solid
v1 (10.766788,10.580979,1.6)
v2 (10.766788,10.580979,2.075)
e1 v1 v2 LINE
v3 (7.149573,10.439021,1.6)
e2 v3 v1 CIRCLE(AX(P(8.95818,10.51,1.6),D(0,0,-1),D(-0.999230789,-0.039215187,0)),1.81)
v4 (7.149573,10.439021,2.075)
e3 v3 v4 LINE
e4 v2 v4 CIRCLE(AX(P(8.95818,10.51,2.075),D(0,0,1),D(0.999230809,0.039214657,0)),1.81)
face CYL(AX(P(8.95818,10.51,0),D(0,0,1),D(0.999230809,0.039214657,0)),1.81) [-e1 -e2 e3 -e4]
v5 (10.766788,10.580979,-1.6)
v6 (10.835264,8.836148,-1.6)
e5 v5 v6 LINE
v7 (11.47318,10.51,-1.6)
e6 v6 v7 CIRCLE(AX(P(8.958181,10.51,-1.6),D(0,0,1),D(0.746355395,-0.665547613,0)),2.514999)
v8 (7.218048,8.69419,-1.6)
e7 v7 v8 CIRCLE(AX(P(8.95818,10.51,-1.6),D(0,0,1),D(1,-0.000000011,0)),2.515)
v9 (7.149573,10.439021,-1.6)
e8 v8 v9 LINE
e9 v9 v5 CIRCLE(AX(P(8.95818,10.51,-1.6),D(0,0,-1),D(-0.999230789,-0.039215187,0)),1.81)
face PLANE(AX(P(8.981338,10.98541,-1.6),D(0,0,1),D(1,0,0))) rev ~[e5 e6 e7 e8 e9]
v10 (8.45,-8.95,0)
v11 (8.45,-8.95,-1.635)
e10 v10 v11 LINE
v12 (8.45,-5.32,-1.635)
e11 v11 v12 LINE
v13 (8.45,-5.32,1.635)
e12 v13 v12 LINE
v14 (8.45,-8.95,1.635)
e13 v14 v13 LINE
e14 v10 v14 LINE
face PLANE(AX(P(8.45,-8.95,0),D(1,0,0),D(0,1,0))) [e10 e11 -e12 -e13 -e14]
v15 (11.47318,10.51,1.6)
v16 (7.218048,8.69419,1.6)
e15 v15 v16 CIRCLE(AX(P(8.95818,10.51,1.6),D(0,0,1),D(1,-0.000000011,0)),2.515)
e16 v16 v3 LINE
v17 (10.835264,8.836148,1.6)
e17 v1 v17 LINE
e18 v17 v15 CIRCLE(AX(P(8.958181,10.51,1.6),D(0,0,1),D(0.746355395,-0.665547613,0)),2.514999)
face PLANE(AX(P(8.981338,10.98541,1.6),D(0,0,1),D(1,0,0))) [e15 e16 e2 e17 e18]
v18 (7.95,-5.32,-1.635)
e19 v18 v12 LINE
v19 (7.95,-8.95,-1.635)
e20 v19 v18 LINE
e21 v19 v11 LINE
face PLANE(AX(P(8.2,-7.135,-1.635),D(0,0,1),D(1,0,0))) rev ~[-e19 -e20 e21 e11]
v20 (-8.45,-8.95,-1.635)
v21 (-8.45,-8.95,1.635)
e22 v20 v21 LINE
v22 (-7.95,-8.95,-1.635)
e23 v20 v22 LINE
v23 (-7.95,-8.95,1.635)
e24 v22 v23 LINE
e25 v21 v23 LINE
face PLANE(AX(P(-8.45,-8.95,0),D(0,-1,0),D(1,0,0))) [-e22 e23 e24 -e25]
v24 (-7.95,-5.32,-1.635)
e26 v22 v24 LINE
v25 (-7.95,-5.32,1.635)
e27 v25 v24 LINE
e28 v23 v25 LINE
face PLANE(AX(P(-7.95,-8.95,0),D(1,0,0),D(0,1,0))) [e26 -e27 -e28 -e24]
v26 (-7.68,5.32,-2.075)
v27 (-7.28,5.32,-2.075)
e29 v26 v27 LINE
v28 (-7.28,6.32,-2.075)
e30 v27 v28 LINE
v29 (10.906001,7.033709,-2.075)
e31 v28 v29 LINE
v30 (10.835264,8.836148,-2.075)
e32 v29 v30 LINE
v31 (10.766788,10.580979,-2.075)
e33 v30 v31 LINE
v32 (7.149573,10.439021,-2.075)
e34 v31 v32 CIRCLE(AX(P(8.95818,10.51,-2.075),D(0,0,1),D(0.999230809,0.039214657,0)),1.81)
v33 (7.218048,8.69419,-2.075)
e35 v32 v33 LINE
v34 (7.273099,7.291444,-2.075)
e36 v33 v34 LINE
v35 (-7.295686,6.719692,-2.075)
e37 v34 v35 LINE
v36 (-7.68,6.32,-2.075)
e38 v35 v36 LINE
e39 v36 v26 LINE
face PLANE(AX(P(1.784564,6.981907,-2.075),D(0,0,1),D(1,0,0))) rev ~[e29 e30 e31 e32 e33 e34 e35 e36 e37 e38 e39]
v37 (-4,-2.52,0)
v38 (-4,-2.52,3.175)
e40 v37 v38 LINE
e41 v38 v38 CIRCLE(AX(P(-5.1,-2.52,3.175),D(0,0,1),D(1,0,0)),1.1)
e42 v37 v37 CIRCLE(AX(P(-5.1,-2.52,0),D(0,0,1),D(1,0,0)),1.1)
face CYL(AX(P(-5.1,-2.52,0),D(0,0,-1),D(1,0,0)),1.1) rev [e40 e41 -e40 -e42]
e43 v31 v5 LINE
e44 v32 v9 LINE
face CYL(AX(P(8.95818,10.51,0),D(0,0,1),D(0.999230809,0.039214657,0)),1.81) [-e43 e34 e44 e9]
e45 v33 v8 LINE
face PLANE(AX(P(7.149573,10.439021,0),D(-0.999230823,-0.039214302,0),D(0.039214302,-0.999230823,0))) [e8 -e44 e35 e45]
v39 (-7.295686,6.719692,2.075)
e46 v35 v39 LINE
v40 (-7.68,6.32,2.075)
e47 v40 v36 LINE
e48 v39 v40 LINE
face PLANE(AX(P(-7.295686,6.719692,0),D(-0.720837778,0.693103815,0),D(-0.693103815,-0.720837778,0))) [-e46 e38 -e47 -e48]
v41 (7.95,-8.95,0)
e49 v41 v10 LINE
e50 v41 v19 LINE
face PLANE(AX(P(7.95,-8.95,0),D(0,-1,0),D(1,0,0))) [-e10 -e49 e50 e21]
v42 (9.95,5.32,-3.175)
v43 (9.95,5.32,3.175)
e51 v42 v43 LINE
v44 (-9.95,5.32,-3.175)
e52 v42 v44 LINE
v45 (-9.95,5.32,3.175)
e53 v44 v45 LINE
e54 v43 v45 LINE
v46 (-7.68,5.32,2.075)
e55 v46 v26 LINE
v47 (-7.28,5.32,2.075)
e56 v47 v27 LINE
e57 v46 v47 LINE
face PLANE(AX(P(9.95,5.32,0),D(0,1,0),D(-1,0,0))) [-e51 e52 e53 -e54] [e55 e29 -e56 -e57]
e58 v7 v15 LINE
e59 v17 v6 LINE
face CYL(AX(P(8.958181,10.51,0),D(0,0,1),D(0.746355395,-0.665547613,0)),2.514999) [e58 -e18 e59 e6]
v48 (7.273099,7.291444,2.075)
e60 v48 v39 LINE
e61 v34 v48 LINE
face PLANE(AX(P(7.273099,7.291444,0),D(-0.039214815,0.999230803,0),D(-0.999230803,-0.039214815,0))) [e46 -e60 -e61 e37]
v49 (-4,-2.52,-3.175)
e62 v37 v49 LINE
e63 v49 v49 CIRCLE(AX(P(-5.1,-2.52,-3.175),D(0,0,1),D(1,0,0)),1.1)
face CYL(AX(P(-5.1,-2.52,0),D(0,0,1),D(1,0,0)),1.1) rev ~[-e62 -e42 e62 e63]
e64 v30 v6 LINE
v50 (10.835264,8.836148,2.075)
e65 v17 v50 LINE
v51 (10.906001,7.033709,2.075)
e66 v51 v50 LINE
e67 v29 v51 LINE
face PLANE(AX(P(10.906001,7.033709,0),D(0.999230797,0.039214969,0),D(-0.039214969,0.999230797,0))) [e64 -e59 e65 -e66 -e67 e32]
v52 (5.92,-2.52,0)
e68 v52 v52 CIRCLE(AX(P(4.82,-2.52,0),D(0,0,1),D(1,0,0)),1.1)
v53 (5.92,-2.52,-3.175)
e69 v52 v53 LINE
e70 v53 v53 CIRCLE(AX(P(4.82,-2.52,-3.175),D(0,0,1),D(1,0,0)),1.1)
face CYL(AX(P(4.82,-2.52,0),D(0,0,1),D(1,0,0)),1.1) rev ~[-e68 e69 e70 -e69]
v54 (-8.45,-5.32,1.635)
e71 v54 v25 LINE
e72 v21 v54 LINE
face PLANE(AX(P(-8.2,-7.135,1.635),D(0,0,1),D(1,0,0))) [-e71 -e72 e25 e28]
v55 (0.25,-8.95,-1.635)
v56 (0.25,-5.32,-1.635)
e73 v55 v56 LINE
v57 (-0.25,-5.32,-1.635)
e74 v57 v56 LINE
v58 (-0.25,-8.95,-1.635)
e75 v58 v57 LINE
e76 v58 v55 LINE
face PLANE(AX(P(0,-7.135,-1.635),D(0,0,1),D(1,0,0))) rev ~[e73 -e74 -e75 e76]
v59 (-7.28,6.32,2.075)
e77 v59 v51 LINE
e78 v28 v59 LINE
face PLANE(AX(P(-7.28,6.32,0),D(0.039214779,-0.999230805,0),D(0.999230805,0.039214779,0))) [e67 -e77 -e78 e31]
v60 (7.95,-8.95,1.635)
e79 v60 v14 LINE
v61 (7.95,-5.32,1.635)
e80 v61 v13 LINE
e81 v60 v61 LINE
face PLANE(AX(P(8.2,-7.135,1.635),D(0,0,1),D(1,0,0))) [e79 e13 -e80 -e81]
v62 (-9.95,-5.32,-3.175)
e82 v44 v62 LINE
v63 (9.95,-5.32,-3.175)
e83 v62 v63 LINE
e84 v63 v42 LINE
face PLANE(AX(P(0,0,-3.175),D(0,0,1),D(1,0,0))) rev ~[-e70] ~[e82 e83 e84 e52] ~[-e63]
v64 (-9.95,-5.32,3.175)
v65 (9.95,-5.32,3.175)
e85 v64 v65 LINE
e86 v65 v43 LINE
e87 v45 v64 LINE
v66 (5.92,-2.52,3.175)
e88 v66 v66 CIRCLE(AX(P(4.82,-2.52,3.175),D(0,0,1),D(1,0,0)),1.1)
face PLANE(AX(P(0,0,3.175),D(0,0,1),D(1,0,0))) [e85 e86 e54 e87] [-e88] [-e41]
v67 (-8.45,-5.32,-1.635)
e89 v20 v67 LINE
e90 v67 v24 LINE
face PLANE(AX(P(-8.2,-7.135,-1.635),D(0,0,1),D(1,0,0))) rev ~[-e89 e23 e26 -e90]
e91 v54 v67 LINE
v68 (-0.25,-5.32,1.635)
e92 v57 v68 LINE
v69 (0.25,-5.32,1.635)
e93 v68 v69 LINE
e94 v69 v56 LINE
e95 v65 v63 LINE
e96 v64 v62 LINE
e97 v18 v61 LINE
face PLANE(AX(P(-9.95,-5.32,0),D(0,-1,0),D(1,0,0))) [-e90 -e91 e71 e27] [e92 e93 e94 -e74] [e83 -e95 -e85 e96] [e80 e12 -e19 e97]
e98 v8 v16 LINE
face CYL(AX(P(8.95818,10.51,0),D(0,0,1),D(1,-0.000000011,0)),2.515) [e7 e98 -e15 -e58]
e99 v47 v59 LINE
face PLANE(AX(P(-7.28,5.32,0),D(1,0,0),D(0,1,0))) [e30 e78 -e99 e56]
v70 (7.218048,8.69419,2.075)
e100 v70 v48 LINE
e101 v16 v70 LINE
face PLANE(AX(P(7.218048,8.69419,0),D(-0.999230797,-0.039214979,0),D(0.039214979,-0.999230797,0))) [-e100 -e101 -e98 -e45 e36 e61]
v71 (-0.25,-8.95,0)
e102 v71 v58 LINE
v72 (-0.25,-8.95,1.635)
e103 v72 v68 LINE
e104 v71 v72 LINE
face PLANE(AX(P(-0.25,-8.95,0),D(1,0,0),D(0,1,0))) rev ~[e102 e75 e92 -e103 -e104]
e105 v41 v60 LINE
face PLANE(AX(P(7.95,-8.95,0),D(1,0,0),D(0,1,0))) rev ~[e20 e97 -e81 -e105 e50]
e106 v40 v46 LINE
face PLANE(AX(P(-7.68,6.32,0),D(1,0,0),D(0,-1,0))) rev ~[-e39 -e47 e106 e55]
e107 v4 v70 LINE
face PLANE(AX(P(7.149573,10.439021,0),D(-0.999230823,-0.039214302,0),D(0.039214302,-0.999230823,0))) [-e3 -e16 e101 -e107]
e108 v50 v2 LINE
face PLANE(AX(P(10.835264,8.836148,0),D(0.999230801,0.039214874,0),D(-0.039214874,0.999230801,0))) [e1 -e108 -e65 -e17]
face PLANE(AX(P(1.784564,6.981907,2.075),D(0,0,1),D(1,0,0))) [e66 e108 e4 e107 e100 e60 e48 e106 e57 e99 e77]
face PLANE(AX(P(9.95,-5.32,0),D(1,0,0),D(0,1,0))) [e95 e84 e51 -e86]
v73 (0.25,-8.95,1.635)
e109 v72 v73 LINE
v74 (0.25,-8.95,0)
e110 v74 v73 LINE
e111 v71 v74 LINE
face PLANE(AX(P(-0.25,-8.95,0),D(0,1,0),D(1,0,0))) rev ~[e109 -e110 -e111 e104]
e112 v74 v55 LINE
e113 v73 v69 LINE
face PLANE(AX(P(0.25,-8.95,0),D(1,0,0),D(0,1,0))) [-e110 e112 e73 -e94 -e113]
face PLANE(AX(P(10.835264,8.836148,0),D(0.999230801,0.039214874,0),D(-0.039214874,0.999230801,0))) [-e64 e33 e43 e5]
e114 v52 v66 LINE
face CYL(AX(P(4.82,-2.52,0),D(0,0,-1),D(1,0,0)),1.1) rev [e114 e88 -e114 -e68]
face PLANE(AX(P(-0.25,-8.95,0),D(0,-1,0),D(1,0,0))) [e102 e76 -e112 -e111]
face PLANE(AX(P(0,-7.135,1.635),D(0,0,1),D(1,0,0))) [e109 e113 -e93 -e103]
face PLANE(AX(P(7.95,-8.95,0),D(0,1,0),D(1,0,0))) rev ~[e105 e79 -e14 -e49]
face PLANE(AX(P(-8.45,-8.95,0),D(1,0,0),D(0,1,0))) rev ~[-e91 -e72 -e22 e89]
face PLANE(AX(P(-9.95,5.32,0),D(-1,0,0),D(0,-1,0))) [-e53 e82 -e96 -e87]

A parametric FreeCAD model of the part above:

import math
import FreeCAD as App
import Part
import Sketcher

doc = App.newDocument("Part")
body = doc.addObject("PartDesign::Body", "Body")

# Sketch on XY plane
sketch1 = body.newObject("Sketcher::SketchObject", "Sketch")
sketch1.AttachmentSupport = (doc.getObject("XY_Plane"), [""])
sketch1.MapMode = "FlatFace"
sketch1.addGeometry([
    Part.LineSegment(App.Vector(9.9, -5.3, 0), App.Vector(9.9, 5.3, 0)),  # 0
    Part.LineSegment(App.Vector(9.9, 5.3, 0), App.Vector(-9.9, 5.3, 0)),  # 1
    Part.LineSegment(App.Vector(-9.9, 5.3, 0), App.Vector(-9.9, -5.3, 0)),  # 2
    Part.LineSegment(App.Vector(-9.9, -5.3, 0), App.Vector(9.9, -5.3, 0)),  # 3
    Part.Circle(App.Vector(-5.1, -2.5, 0), App.Vector(0, 0, 1), 1.1),  # 4
    Part.Circle(App.Vector(4.8, -2.5, 0), App.Vector(0, 0, 1), 1.1),  # 5
], False)
sketch1.addConstraint([
    Sketcher.Constraint("Coincident", 0, 2, 1, 1),
    Sketcher.Constraint("Coincident", 1, 2, 2, 1),
    Sketcher.Constraint("Coincident", 2, 2, 3, 1),
    Sketcher.Constraint("Coincident", 3, 2, 0, 1),
    Sketcher.Constraint("Vertical", 0),
    Sketcher.Constraint("Horizontal", 1),
    Sketcher.Constraint("Vertical", 2),
    Sketcher.Constraint("Horizontal", 3),
    Sketcher.Constraint("Equal", 4, 5),
    Sketcher.Constraint("Symmetric", 0, 2, 2, 2, -1, 1),
    Sketcher.Constraint("Horizontal", 4, 3, 5, 3),
    Sketcher.Constraint("Diameter", 4, 2.2),
    Sketcher.Constraint("DistanceX", 1, 2, 1, 1, 19.9),
    Sketcher.Constraint("DistanceY", 0, 1, 0, 2, 10.64),
    Sketcher.Constraint("DistanceX", 4, 3, -1, 1, 5.1),
    Sketcher.Constraint("DistanceY", 2, 2, 4, 3, 2.8),
    Sketcher.Constraint("DistanceX", -1, 1, 5, 3, 4.82),
])
pad1 = body.newObject("PartDesign::Pad", "Pad")
pad1.Profile = sketch1
pad1.Type = "TwoLengths"
pad1.Length = 3.175
pad1.Length2 = 3.175

# Sketch on XY plane
sketch2 = body.newObject("Sketcher::SketchObject", "Sketch001")
sketch2.AttachmentSupport = (doc.getObject("XY_Plane"), [""])
sketch2.MapMode = "FlatFace"
sketch2.addGeometry([
    Part.LineSegment(App.Vector(-7.68, 5.32, 0), App.Vector(-7.28, 5.32, 0)),  # 0
    Part.LineSegment(App.Vector(-7.28, 5.32, 0), App.Vector(-7.28, 6.32, 0)),  # 1
    Part.LineSegment(App.Vector(-7.28, 6.32, 0), App.Vector(10.91, 7.03, 0)),  # 2
    Part.LineSegment(App.Vector(10.91, 7.03, 0), App.Vector(10.84, 8.84, 0)),  # 3
    Part.LineSegment(App.Vector(10.84, 8.84, 0), App.Vector(10.77, 10.58, 0)),  # 4
    Part.ArcOfCircle(Part.Circle(App.Vector(8.96, 10.51, 0), App.Vector(0, 0, 1), 1.81), math.radians(2), math.radians(182)),  # 5
    Part.LineSegment(App.Vector(7.15, 10.44, 0), App.Vector(7.22, 8.69, 0)),  # 6
    Part.LineSegment(App.Vector(7.22, 8.69, 0), App.Vector(7.27, 7.29, 0)),  # 7
    Part.LineSegment(App.Vector(7.27, 7.29, 0), App.Vector(-7.3, 6.72, 0)),  # 8
    Part.LineSegment(App.Vector(-7.3, 6.72, 0), App.Vector(-7.68, 6.32, 0)),  # 9
    Part.LineSegment(App.Vector(-7.68, 6.32, 0), App.Vector(-7.68, 5.32, 0)),  # 10
], False)
sketch2.addConstraint([
    Sketcher.Constraint("Coincident", 0, 2, 1, 1),
    Sketcher.Constraint("Coincident", 1, 2, 2, 1),
    Sketcher.Constraint("Coincident", 2, 2, 3, 1),
    Sketcher.Constraint("Coincident", 3, 2, 4, 1),
    Sketcher.Constraint("Tangent", 4, 2, 5, 1),
    Sketcher.Constraint("Tangent", 5, 2, 6, 1),
    Sketcher.Constraint("Coincident", 6, 2, 7, 1),
    Sketcher.Constraint("Coincident", 7, 2, 8, 1),
    Sketcher.Constraint("Coincident", 8, 2, 9, 1),
    Sketcher.Constraint("Coincident", 9, 2, 10, 1),
    Sketcher.Constraint("Coincident", 10, 2, 0, 1),
    Sketcher.Constraint("Horizontal", 0),
    Sketcher.Constraint("Vertical", 1),
    Sketcher.Constraint("Vertical", 10),
    Sketcher.Constraint("Perpendicular", 2, 3),
    Sketcher.Constraint("Parallel", 3, 4),
    Sketcher.Constraint("Parallel", 4, 6),
    Sketcher.Constraint("Parallel", 6, 7),
    Sketcher.Constraint("Perpendicular", 7, 8),
    Sketcher.Constraint("Horizontal", 1, 2, 9, 2),
    Sketcher.Constraint("Equal", 4, 6),
    Sketcher.Constraint("DistanceY", 1, 1, 1, 2, 1.0),
    Sketcher.Constraint("Radius", 5, 1.81),
    Sketcher.Constraint("DistanceX", 0, 1, 0, 2, 0.4),
    Sketcher.Constraint("Distance", 2, 18.2),
    Sketcher.Constraint("Distance", 8, 14.58),
    Sketcher.Constraint("DistanceY", -1, 1, 5, 3, 10.51),
    Sketcher.Constraint("DistanceX", 0, 2, -1, 1, 7.28),
    Sketcher.Constraint("DistanceY", -1, 1, 0, 2, 5.32),
    Sketcher.Constraint("DistanceX", -1, 1, 2, 2, 10.906001),
    Sketcher.Constraint("DistanceX", -1, 1, 7, 2, 7.273099),
    Sketcher.Constraint("DistanceY", 8, 2, 6, 2, 1.974498),
])
pad2 = body.newObject("PartDesign::Pad", "Pad001")
pad2.Profile = sketch2
pad2.Type = "TwoLengths"
pad2.Length = 2.075
pad2.Length2 = 2.075

# Sketch on XY plane
sketch3 = body.newObject("Sketcher::SketchObject", "Sketch002")
sketch3.AttachmentSupport = (doc.getObject("XY_Plane"), [""])
sketch3.MapMode = "FlatFace"
sketch3.addGeometry([
    Part.LineSegment(App.Vector(-8.45, -5.32, 0), App.Vector(-8.45, -8.95, 0)),  # 0
    Part.LineSegment(App.Vector(-8.45, -8.95, 0), App.Vector(-7.95, -8.95, 0)),  # 1
    Part.LineSegment(App.Vector(-7.95, -8.95, 0), App.Vector(-7.95, -5.32, 0)),  # 2
    Part.LineSegment(App.Vector(-7.95, -5.32, 0), App.Vector(-8.45, -5.32, 0)),  # 3
    Part.LineSegment(App.Vector(7.95, -5.32, 0), App.Vector(7.95, -8.95, 0)),  # 4
    Part.LineSegment(App.Vector(7.95, -8.95, 0), App.Vector(8.45, -8.95, 0)),  # 5
    Part.LineSegment(App.Vector(8.45, -8.95, 0), App.Vector(8.45, -5.32, 0)),  # 6
    Part.LineSegment(App.Vector(8.45, -5.32, 0), App.Vector(7.95, -5.32, 0)),  # 7
    Part.LineSegment(App.Vector(-0.25, -5.32, 0), App.Vector(-0.25, -8.95, 0)),  # 8
    Part.LineSegment(App.Vector(-0.25, -8.95, 0), App.Vector(0.25, -8.95, 0)),  # 9
    Part.LineSegment(App.Vector(0.25, -8.95, 0), App.Vector(0.25, -5.32, 0)),  # 10
    Part.LineSegment(App.Vector(0.25, -5.32, 0), App.Vector(-0.25, -5.32, 0)),  # 11
], False)
sketch3.addConstraint([
    Sketcher.Constraint("Coincident", 0, 2, 1, 1),
    Sketcher.Constraint("Coincident", 1, 2, 2, 1),
    Sketcher.Constraint("Coincident", 2, 2, 3, 1),
    Sketcher.Constraint("Coincident", 3, 2, 0, 1),
    Sketcher.Constraint("Coincident", 4, 2, 5, 1),
    Sketcher.Constraint("Coincident", 5, 2, 6, 1),
    Sketcher.Constraint("Coincident", 6, 2, 7, 1),
    Sketcher.Constraint("Coincident", 7, 2, 4, 1),
    Sketcher.Constraint("Coincident", 8, 2, 9, 1),
    Sketcher.Constraint("Coincident", 9, 2, 10, 1),
    Sketcher.Constraint("Coincident", 10, 2, 11, 1),
    Sketcher.Constraint("Coincident", 11, 2, 8, 1),
    Sketcher.Constraint("Vertical", 0),
    Sketcher.Constraint("Horizontal", 1),
    Sketcher.Constraint("Vertical", 2),
    Sketcher.Constraint("Horizontal", 3),
    Sketcher.Constraint("Vertical", 4),
    Sketcher.Constraint("Horizontal", 5),
    Sketcher.Constraint("Vertical", 6),
    Sketcher.Constraint("Horizontal", 7),
    Sketcher.Constraint("Vertical", 8),
    Sketcher.Constraint("Horizontal", 9),
    Sketcher.Constraint("Vertical", 10),
    Sketcher.Constraint("Horizontal", 11),
    Sketcher.Constraint("Symmetric", 1, 2, 4, 2, -2),
    Sketcher.Constraint("Symmetric", 3, 2, 6, 2, -2),
    Sketcher.Constraint("Horizontal", 5, 2, 8, 2),
    Sketcher.Constraint("Horizontal", 7, 2, 10, 2),
    Sketcher.Constraint("Equal", 7, 9),
    Sketcher.Constraint("DistanceX", 1, 1, 1, 2, 0.5),
    Sketcher.Constraint("DistanceY", 0, 2, 0, 1, 3.63),
    Sketcher.Constraint("DistanceX", 1, 2, 4, 2, 15.9),
    Sketcher.Constraint("DistanceX", 1, 2, 8, 2, 7.7),
    Sketcher.Constraint("DistanceY", 0, 2, -1, 1, 8.95),
])
pad3 = body.newObject("PartDesign::Pad", "Pad002")
pad3.Profile = sketch3
pad3.Type = "TwoLengths"
pad3.Length = 1.635
pad3.Length2 = 1.635

# Sketch on XY plane
sketch4 = body.newObject("Sketcher::SketchObject", "Sketch003")
sketch4.AttachmentSupport = (doc.getObject("XY_Plane"), [""])
sketch4.MapMode = "FlatFace"
sketch4.addGeometry([
    Part.LineSegment(App.Vector(10.8, 10.6, 0), App.Vector(10.8, 8.8, 0)),  # 0
    Part.ArcOfCircle(Part.Circle(App.Vector(9, 10.5, 0), App.Vector(0, 0, 1), 2.5), math.radians(-42), math.radians(0)),  # 1
    Part.ArcOfCircle(Part.Circle(App.Vector(9, 10.5, 0), App.Vector(0, 0, 1), 2.5), math.radians(0), math.radians(226)),  # 2
    Part.LineSegment(App.Vector(7.2, 8.7, 0), App.Vector(7.1, 10.4, 0)),  # 3
    Part.ArcOfCircle(Part.Circle(App.Vector(9, 10.5, 0), App.Vector(0, 0, 1), 1.8), math.radians(2), math.radians(182)),  # 4
], False)
sketch4.addConstraint([
    Sketcher.Constraint("Coincident", 0, 2, 1, 1),
    Sketcher.Constraint("Tangent", 1, 2, 2, 1),
    Sketcher.Constraint("Coincident", 2, 2, 3, 1),
    Sketcher.Constraint("Tangent", 3, 2, 4, 2),
    Sketcher.Constraint("Tangent", 4, 1, 0, 1),
    Sketcher.Constraint("Coincident", 4, 3, 1, 3),
    Sketcher.Constraint("Equal", 1, 2),
    Sketcher.Constraint("Parallel", 0, 3),
    Sketcher.Constraint("Horizontal", 4, 3, 1, 2),
    Sketcher.Constraint("Radius", 4, 1.81),
    Sketcher.Constraint("Radius", 1, 2.514999),
    Sketcher.Constraint("DistanceY", -1, 1, 1, 3, 10.51),
    Sketcher.Constraint("DistanceX", -1, 1, 1, 3, 8.958181),
    Sketcher.Constraint("DistanceX", -1, 1, 2, 2, 7.218048),
])
pad4 = body.newObject("PartDesign::Pad", "Pad003")
pad4.Profile = sketch4
pad4.Type = "TwoLengths"
pad4.Length = 1.6
pad4.Length2 = 1.6

doc.recompute()
